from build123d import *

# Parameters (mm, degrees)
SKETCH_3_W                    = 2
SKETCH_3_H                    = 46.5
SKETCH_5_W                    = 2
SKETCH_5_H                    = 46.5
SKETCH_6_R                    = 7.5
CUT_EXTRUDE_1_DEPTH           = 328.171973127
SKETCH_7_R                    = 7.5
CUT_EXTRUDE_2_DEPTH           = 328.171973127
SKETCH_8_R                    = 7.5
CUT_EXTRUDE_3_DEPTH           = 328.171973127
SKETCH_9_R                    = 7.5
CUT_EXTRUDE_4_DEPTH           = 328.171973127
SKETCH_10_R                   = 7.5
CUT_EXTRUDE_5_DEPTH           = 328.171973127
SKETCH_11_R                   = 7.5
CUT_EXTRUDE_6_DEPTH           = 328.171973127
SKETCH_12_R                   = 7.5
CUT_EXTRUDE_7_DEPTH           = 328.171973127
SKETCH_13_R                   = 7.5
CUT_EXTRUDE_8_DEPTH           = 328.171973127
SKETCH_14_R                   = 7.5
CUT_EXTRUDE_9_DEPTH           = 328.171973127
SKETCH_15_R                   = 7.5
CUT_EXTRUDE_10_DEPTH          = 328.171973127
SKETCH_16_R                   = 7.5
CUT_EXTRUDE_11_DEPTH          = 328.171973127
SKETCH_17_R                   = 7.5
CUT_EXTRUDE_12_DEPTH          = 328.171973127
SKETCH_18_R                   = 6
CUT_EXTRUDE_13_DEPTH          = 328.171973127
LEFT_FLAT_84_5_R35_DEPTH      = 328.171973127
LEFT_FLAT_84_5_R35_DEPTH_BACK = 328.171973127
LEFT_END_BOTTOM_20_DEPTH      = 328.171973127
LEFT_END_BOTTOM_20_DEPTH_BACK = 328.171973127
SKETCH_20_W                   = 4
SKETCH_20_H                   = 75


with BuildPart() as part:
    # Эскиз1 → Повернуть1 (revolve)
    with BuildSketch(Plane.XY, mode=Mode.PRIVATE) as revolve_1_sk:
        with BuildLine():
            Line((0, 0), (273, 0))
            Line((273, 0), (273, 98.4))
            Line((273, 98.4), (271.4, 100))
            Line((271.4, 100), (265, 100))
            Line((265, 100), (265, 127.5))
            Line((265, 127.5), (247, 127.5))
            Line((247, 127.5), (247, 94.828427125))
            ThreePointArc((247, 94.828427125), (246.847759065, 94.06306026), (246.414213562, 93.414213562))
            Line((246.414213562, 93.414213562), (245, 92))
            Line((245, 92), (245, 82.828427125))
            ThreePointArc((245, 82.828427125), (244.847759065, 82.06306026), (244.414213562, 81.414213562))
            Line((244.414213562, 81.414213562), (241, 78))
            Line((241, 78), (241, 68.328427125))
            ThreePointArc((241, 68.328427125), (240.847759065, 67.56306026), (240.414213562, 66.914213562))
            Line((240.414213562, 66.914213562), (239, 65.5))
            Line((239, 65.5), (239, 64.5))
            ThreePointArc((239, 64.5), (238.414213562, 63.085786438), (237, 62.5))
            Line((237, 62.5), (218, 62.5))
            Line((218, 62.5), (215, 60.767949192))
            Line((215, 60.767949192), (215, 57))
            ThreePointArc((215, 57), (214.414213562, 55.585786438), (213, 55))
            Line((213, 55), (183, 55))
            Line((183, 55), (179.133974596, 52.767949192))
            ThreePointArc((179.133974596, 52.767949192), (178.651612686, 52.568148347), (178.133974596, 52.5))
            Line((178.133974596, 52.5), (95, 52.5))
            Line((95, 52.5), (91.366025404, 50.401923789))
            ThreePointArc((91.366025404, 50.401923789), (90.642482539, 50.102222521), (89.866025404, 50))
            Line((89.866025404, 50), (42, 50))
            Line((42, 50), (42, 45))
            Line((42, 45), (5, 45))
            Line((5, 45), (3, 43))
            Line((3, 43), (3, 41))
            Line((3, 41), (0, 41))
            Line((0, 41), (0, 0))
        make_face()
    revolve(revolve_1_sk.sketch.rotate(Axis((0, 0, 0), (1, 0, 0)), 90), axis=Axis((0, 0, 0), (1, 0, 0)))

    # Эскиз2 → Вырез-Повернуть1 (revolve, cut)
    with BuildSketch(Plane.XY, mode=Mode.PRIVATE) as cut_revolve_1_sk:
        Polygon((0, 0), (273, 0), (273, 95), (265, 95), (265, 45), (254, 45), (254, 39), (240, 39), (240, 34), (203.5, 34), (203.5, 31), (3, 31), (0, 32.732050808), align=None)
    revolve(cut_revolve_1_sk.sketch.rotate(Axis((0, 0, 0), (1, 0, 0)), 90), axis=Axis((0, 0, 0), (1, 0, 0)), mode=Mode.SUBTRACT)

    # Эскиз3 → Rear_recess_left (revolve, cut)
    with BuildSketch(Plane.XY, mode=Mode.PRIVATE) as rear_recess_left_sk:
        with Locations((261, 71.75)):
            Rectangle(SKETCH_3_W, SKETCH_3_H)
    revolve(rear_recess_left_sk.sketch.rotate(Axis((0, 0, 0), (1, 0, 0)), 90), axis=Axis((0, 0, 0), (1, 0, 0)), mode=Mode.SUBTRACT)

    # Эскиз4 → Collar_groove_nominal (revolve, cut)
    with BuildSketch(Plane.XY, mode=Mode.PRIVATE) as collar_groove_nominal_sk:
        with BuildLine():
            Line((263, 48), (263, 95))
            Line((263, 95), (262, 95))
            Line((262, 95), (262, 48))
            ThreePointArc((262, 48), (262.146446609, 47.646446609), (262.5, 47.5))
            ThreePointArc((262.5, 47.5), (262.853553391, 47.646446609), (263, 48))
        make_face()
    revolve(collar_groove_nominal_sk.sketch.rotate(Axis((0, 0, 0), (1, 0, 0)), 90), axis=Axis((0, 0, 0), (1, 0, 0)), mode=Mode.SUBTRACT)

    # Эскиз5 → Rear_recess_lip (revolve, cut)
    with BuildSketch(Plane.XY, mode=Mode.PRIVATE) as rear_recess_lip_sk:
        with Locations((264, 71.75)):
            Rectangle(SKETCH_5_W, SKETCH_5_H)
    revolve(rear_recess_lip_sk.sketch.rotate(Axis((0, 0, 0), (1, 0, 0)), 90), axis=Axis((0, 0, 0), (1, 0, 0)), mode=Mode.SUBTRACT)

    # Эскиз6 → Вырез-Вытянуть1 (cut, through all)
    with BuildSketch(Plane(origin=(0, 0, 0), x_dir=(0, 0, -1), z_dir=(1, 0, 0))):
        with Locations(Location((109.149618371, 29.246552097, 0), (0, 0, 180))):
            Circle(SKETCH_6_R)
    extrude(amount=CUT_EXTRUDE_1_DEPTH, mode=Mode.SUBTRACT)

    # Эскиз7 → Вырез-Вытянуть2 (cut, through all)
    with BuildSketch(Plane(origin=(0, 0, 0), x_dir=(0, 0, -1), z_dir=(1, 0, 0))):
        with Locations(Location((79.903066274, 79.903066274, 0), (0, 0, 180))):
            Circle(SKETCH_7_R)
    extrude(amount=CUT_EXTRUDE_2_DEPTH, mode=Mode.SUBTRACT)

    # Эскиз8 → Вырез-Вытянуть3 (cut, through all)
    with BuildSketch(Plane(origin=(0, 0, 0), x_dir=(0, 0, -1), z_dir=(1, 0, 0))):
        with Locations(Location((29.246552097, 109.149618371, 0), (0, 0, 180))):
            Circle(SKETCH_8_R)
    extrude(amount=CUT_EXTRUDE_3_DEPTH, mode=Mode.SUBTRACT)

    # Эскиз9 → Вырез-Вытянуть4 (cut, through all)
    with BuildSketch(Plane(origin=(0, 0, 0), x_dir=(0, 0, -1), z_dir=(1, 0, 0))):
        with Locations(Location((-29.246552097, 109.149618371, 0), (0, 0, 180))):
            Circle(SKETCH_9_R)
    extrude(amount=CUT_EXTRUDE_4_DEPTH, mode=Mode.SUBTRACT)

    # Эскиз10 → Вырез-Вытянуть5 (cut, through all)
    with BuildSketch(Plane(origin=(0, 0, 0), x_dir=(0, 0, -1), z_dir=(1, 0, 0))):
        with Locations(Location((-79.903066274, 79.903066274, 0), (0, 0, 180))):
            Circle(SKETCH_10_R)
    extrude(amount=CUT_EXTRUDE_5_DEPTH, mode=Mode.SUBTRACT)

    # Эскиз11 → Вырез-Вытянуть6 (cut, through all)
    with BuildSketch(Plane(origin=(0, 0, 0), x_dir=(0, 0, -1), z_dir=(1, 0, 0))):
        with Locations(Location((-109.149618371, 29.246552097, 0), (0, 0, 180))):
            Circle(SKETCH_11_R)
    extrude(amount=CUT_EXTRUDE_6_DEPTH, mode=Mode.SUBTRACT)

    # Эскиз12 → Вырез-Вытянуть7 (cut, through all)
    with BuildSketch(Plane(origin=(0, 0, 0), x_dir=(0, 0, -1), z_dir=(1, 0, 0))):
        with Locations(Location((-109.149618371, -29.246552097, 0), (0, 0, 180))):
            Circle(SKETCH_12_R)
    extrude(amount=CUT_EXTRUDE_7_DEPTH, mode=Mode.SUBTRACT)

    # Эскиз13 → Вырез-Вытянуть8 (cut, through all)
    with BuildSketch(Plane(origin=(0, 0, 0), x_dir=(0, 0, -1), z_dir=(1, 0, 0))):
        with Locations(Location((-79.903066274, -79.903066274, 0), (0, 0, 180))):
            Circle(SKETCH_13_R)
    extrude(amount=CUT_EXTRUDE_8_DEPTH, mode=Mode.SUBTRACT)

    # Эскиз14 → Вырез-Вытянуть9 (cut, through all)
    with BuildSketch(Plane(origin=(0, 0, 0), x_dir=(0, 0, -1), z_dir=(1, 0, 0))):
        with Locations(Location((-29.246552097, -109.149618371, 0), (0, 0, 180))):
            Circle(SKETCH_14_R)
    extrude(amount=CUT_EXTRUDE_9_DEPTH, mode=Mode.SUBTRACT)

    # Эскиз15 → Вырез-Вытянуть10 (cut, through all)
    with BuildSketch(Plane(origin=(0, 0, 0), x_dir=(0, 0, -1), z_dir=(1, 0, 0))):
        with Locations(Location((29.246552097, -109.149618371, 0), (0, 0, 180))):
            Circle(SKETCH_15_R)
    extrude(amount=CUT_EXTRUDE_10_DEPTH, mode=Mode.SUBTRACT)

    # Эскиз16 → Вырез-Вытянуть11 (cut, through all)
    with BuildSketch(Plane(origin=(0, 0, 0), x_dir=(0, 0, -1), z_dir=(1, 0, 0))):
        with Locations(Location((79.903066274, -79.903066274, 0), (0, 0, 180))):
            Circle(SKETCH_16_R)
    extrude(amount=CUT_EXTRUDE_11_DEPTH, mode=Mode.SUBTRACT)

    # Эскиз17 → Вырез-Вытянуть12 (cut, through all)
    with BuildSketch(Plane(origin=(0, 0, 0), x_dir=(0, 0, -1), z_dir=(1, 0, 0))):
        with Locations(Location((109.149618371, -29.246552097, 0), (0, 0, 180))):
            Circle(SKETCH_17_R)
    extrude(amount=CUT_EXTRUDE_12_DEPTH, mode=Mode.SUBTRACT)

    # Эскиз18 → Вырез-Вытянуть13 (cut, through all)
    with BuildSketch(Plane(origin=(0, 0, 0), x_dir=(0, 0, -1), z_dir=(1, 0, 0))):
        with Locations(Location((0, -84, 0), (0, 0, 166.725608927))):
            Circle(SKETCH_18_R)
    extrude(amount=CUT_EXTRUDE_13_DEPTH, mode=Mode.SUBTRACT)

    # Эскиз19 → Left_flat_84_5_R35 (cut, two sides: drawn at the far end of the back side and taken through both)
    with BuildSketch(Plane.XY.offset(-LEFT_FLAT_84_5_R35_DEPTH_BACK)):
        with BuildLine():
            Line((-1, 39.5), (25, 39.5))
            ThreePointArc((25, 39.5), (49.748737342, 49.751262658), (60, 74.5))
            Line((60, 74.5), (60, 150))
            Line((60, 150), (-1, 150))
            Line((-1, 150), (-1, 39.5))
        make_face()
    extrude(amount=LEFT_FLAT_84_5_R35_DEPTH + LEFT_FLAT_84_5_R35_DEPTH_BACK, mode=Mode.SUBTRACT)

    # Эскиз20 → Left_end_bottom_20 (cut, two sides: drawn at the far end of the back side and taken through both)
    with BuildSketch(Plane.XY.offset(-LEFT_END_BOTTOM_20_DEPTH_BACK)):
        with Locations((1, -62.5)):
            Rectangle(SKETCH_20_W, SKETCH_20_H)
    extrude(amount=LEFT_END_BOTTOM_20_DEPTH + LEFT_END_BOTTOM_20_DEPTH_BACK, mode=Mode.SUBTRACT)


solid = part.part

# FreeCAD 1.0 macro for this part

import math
import FreeCAD as App
import Part
import Sketcher
from FreeCAD import Vector
Q = App.Units.Quantity

doc = App.newDocument("Part")
body = doc.addObject("PartDesign::Body", "Body")

sketch1 = body.newObject("Sketcher::SketchObject", "Sketch")
sketch1.AttachmentSupport = (doc.getObject("XY_Plane"), [""])
sketch1.MapMode = "FlatFace"
sketch1.addGeometry([
    Part.LineSegment(Vector(0, 0, 0), Vector(273, 0, 0)),
    Part.LineSegment(Vector(273, 0, 0), Vector(273, 98.4, 0)),
    Part.LineSegment(Vector(273, 98.4, 0), Vector(271.4, 100, 0)),
    Part.LineSegment(Vector(271.4, 100, 0), Vector(265, 100, 0)),
    Part.LineSegment(Vector(265, 100, 0), Vector(265, 127.5, 0)),
    Part.LineSegment(Vector(265, 127.5, 0), Vector(247, 127.5, 0)),
    Part.LineSegment(Vector(247, 127.5, 0), Vector(247, 94.8, 0)),
    Part.ArcOfCircle(Part.Circle(Vector(245, 94.8, 0), Vector(0, 0, 1), 2), math.radians(-45), math.radians(0)),
    Part.LineSegment(Vector(246.4, 93.4, 0), Vector(245, 92, 0)),
    Part.LineSegment(Vector(245, 92, 0), Vector(245, 82.8, 0)),
    Part.ArcOfCircle(Part.Circle(Vector(243, 82.8, 0), Vector(0, 0, 1), 2), math.radians(-45), math.radians(0)),
    Part.LineSegment(Vector(244.4, 81.4, 0), Vector(241, 78, 0)),
    Part.LineSegment(Vector(241, 78, 0), Vector(241, 68.3, 0)),
    Part.ArcOfCircle(Part.Circle(Vector(239, 68.3, 0), Vector(0, 0, 1), 2), math.radians(-45), math.radians(0)),
    Part.LineSegment(Vector(240.4, 66.9, 0), Vector(239, 65.5, 0)),
    Part.LineSegment(Vector(239, 65.5, 0), Vector(239, 64.5, 0)),
    Part.ArcOfCircle(Part.Circle(Vector(237, 64.5, 0), Vector(0, 0, 1), 2), math.radians(-90), math.radians(0)),
    Part.LineSegment(Vector(237, 62.5, 0), Vector(218, 62.5, 0)),
    Part.LineSegment(Vector(218, 62.5, 0), Vector(215, 60.8, 0)),
    Part.LineSegment(Vector(215, 60.8, 0), Vector(215, 57, 0)),
    Part.ArcOfCircle(Part.Circle(Vector(213, 57, 0), Vector(0, 0, 1), 2), math.radians(-90), math.radians(0)),
    Part.LineSegment(Vector(213, 55, 0), Vector(183, 55, 0)),
    Part.LineSegment(Vector(183, 55, 0), Vector(179.1, 52.8, 0)),
    Part.ArcOfCircle(Part.Circle(Vector(178.1, 54.5, 0), Vector(0, 0, 1), 2), math.radians(-90), math.radians(-60)),
    Part.LineSegment(Vector(178.1, 52.5, 0), Vector(95, 52.5, 0)),
    Part.LineSegment(Vector(95, 52.5, 0), Vector(91.4, 50.4, 0)),
    Part.ArcOfCircle(Part.Circle(Vector(89.9, 53, 0), Vector(0, 0, 1), 3), math.radians(-90), math.radians(-60)),
    Part.LineSegment(Vector(89.9, 50, 0), Vector(42, 50, 0)),
    Part.LineSegment(Vector(42, 50, 0), Vector(42, 45, 0)),
    Part.LineSegment(Vector(42, 45, 0), Vector(5, 45, 0)),
    Part.LineSegment(Vector(5, 45, 0), Vector(3, 43, 0)),
    Part.LineSegment(Vector(3, 43, 0), Vector(3, 41, 0)),
    Part.LineSegment(Vector(3, 41, 0), Vector(0, 41, 0)),
    Part.LineSegment(Vector(0, 41, 0), Vector(0, 0, 0)),
], False)
sketch1.addConstraint([
    Sketcher.Constraint("Coincident", 0, 2, 1, 1),
    Sketcher.Constraint("Coincident", 1, 2, 2, 1),
    Sketcher.Constraint("Coincident", 2, 2, 3, 1),
    Sketcher.Constraint("Coincident", 3, 2, 4, 1),
    Sketcher.Constraint("Coincident", 4, 2, 5, 1),
    Sketcher.Constraint("Coincident", 5, 2, 6, 1),
    Sketcher.Constraint("Tangent", 6, 2, 7, 2),
    Sketcher.Constraint("Tangent", 7, 1, 8, 1),
    Sketcher.Constraint("Coincident", 8, 2, 9, 1),
    Sketcher.Constraint("Tangent", 9, 2, 10, 2),
    Sketcher.Constraint("Tangent", 10, 1, 11, 1),
    Sketcher.Constraint("Coincident", 11, 2, 12, 1),
    Sketcher.Constraint("Tangent", 12, 2, 13, 2),
    Sketcher.Constraint("Tangent", 13, 1, 14, 1),
    Sketcher.Constraint("Coincident", 14, 2, 15, 1),
    Sketcher.Constraint("Tangent", 15, 2, 16, 2),
    Sketcher.Constraint("Tangent", 16, 1, 17, 1),
    Sketcher.Constraint("Coincident", 17, 2, 18, 1),
    Sketcher.Constraint("Coincident", 18, 2, 19, 1),
    Sketcher.Constraint("Tangent", 19, 2, 20, 2),
    Sketcher.Constraint("Tangent", 20, 1, 21, 1),
    Sketcher.Constraint("Coincident", 21, 2, 22, 1),
    Sketcher.Constraint("Tangent", 22, 2, 23, 2),
    Sketcher.Constraint("Tangent", 23, 1, 24, 1),
    Sketcher.Constraint("Coincident", 24, 2, 25, 1),
    Sketcher.Constraint("Tangent", 25, 2, 26, 2),
    Sketcher.Constraint("Tangent", 26, 1, 27, 1),
    Sketcher.Constraint("Coincident", 27, 2, 28, 1),
    Sketcher.Constraint("Coincident", 28, 2, 29, 1),
    Sketcher.Constraint("Coincident", 29, 2, 30, 1),
    Sketcher.Constraint("Coincident", 30, 2, 31, 1),
    Sketcher.Constraint("Coincident", 31, 2, 32, 1),
    Sketcher.Constraint("Coincident", 32, 2, 33, 1),
    Sketcher.Constraint("Coincident", 33, 2, 0, 1),
    Sketcher.Constraint("Horizontal", 0),
    Sketcher.Constraint("Vertical", 1),
    Sketcher.Constraint("Horizontal", 3),
    Sketcher.Constraint("Vertical", 4),
    Sketcher.Constraint("Horizontal", 5),
    Sketcher.Constraint("Vertical", 6),
    Sketcher.Constraint("Vertical", 9),
    Sketcher.Constraint("Vertical", 12),
    Sketcher.Constraint("Vertical", 15),
    Sketcher.Constraint("Horizontal", 17),
    Sketcher.Constraint("Vertical", 19),
    Sketcher.Constraint("Horizontal", 21),
    Sketcher.Constraint("Horizontal", 24),
    Sketcher.Constraint("Horizontal", 27),
    Sketcher.Constraint("Vertical", 28),
    Sketcher.Constraint("Horizontal", 29),
    Sketcher.Constraint("Vertical", 31),
    Sketcher.Constraint("Horizontal", 32),
    Sketcher.Constraint("Vertical", 33),
    Sketcher.Constraint("Coincident", 33, 2, -1, 1),
    Sketcher.Constraint("Equal", 7, 10),
    Sketcher.Constraint("Equal", 10, 13),
    Sketcher.Constraint("Equal", 13, 16),
    Sketcher.Constraint("Equal", 16, 20),
    Sketcher.Constraint("Equal", 20, 23),
    Sketcher.Constraint("Perpendicular", 2, 8),
    Sketcher.Constraint("Parallel", 8, 11),
    Sketcher.Constraint("Parallel", 11, 14),
    Sketcher.Constraint("Parallel", 18, 22),
    Sketcher.Constraint("Parallel", 22, 25),
    Sketcher.Constraint("Parallel", 14, 30),
    Sketcher.Constraint("Vertical", 7, 3, 8, 2),
    Sketcher.Constraint("Vertical", 13, 3, 14, 2),
    Sketcher.Constraint("Radius", 7, 2.0),
    Sketcher.Constraint("Radius", 26, 3.0),
    Sketcher.Constraint("DistanceX", 0, 1, 0, 2, 273.0),
    Sketcher.Constraint("DistanceX", 5, 2, 5, 1, 18.0),
    Sketcher.Constraint("DistanceX", 17, 2, 17, 1, 19.0),
    Sketcher.Constraint("DistanceX", 21, 2, 21, 1, 30.0),
    Sketcher.Constraint("DistanceX", 29, 2, 29, 1, 37.0),
    Sketcher.Constraint("DistanceX", 32, 2, 32, 1, 3.0),
    Sketcher.Constraint("DistanceY", 15, 2, 15, 1, 1.0),
    Sketcher.Constraint("DistanceY", 28, 2, 28, 1, 5.0),
    Sketcher.Constraint("DistanceY", 31, 2, 31, 1, 2.0),
    Sketcher.Constraint("DistanceY", 33, 2, 33, 1, 41.0),
    Sketcher.Constraint("Angle", 2, Q("135 deg")),
    Sketcher.Constraint("Angle", 18, Q("-150 deg")),
    Sketcher.Constraint("DistanceX", 3, 2, 3, 1, 6.4),
    Sketcher.Constraint("DistanceY", 1, 1, 1, 2, 98.4),
    Sketcher.Constraint("DistanceY", 4, 1, 4, 2, 27.5),
    Sketcher.Constraint("DistanceX", -1, 1, 7, 3, 245.0),
    Sketcher.Constraint("DistanceX", -1, 1, 13, 3, 239.0),
    Sketcher.Constraint("DistanceX", -1, 1, 20, 3, 213.0),
    Sketcher.Constraint("DistanceY", -1, 1, 20, 3, 57.0),
    Sketcher.Constraint("DistanceY", -1, 1, 26, 3, 53.0),
    Sketcher.Constraint("DistanceY", -1, 1, 8, 2, 92.0),
    Sketcher.Constraint("DistanceY", -1, 1, 11, 2, 78.0),
    Sketcher.Constraint("DistanceX", -1, 1, 24, 2, 95.0),
    Sketcher.Constraint("DistanceY", 23, 3, 16, 3, 10.0),
    Sketcher.Constraint("DistanceY", -1, 1, 16, 3, 64.5),
])
revolution = body.newObject("PartDesign::Revolution", "Revolution")
revolution.Profile = sketch1
revolution.ReferenceAxis = (sketch1, ["H_Axis"])
revolution.Angle = 360

sketch2 = body.newObject("Sketcher::SketchObject", "Sketch001")
sketch2.AttachmentSupport = (doc.getObject("XY_Plane"), [""])
sketch2.MapMode = "FlatFace"
sketch2.addGeometry([
    Part.LineSegment(Vector(0, 0, 0), Vector(273, 0, 0)),
    Part.LineSegment(Vector(273, 0, 0), Vector(273, 95, 0)),
    Part.LineSegment(Vector(273, 95, 0), Vector(265, 95, 0)),
    Part.LineSegment(Vector(265, 95, 0), Vector(265, 45, 0)),
    Part.LineSegment(Vector(265, 45, 0), Vector(254, 45, 0)),
    Part.LineSegment(Vector(254, 45, 0), Vector(254, 39, 0)),
    Part.LineSegment(Vector(254, 39, 0), Vector(240, 39, 0)),
    Part.LineSegment(Vector(240, 39, 0), Vector(240, 34, 0)),
    Part.LineSegment(Vector(240, 34, 0), Vector(203.5, 34, 0)),
    Part.LineSegment(Vector(203.5, 34, 0), Vector(203.5, 31, 0)),
    Part.LineSegment(Vector(203.5, 31, 0), Vector(3, 31, 0)),
    Part.LineSegment(Vector(3, 31, 0), Vector(0, 32.7, 0)),
    Part.LineSegment(Vector(0, 32.7, 0), Vector(0, 0, 0)),
], False)
sketch2.addConstraint([
    Sketcher.Constraint("Coincident", 0, 2, 1, 1),
    Sketcher.Constraint("Coincident", 1, 2, 2, 1),
    Sketcher.Constraint("Coincident", 2, 2, 3, 1),
    Sketcher.Constraint("Coincident", 3, 2, 4, 1),
    Sketcher.Constraint("Coincident", 4, 2, 5, 1),
    Sketcher.Constraint("Coincident", 5, 2, 6, 1),
    Sketcher.Constraint("Coincident", 6, 2, 7, 1),
    Sketcher.Constraint("Coincident", 7, 2, 8, 1),
    Sketcher.Constraint("Coincident", 8, 2, 9, 1),
    Sketcher.Constraint("Coincident", 9, 2, 10, 1),
    Sketcher.Constraint("Coincident", 10, 2, 11, 1),
    Sketcher.Constraint("Coincident", 11, 2, 12, 1),
    Sketcher.Constraint("Coincident", 12, 2, 0, 1),
    Sketcher.Constraint("Horizontal", 0),
    Sketcher.Constraint("Vertical", 1),
    Sketcher.Constraint("Horizontal", 2),
    Sketcher.Constraint("Vertical", 3),
    Sketcher.Constraint("Horizontal", 4),
    Sketcher.Constraint("Vertical", 5),
    Sketcher.Constraint("Horizontal", 6),
    Sketcher.Constraint("Vertical", 7),
    Sketcher.Constraint("Horizontal", 8),
    Sketcher.Constraint("Vertical", 9),
    Sketcher.Constraint("Horizontal", 10),
    Sketcher.Constraint("Vertical", 12),
    Sketcher.Constraint("Coincident", 12, 2, -1, 1),
    Sketcher.Constraint("DistanceX", 0, 1, 0, 2, 273.0),
    Sketcher.Constraint("DistanceX", 2, 2, 2, 1, 8.0),
    Sketcher.Constraint("DistanceX", 4, 2, 4, 1, 11.0),
    Sketcher.Constraint("DistanceX", 6, 2, 6, 1, 14.0),
    Sketcher.Constraint("DistanceY", 1, 1, 1, 2, 95.0),
    Sketcher.Constraint("DistanceY", 3, 2, 3, 1, 50.0),
    Sketcher.Constraint("DistanceY", 5, 2, 5, 1, 6.0),
    Sketcher.Constraint("DistanceY", 7, 2, 7, 1, 5.0),
    Sketcher.Constraint("DistanceY", 9, 2, 9, 1, 3.0),
    Sketcher.Constraint("Angle", 11, Q("150 deg")),
    Sketcher.Constraint("DistanceX", 8, 2, 8, 1, 36.5),
    Sketcher.Constraint("DistanceX", 10, 2, 10, 1, 200.5),
])
groove = body.newObject("PartDesign::Groove", "Groove")
groove.Profile = sketch2
groove.ReferenceAxis = (sketch2, ["H_Axis"])
groove.Angle = 360

sketch3 = body.newObject("Sketcher::SketchObject", "Sketch002")
sketch3.AttachmentSupport = (doc.getObject("XY_Plane"), [""])
sketch3.MapMode = "FlatFace"
sketch3.addGeometry([
    Part.LineSegment(Vector(260, 95, 0), Vector(260, 48.5, 0)),
    Part.LineSegment(Vector(260, 48.5, 0), Vector(262, 48.5, 0)),
    Part.LineSegment(Vector(262, 48.5, 0), Vector(262, 95, 0)),
    Part.LineSegment(Vector(262, 95, 0), Vector(260, 95, 0)),
], False)
sketch3.addConstraint([
    Sketcher.Constraint("Coincident", 0, 2, 1, 1),
    Sketcher.Constraint("Coincident", 1, 2, 2, 1),
    Sketcher.Constraint("Coincident", 2, 2, 3, 1),
    Sketcher.Constraint("Coincident", 3, 2, 0, 1),
    Sketcher.Constraint("Vertical", 0),
    Sketcher.Constraint("Horizontal", 1),
    Sketcher.Constraint("Vertical", 2),
    Sketcher.Constraint("Horizontal", 3),
    Sketcher.Constraint("DistanceX", 1, 1, 1, 2, 2.0),
    Sketcher.Constraint("DistanceY", 0, 2, 0, 1, 46.5),
    Sketcher.Constraint("DistanceX", -1, 1, 0, 2, 260.0),
    Sketcher.Constraint("DistanceY", -1, 1, 2, 2, 95.0),
])
groove2 = body.newObject("PartDesign::Groove", "Groove001")
groove2.Profile = sketch3
groove2.ReferenceAxis = (sketch3, ["H_Axis"])
groove2.Angle = 360

sketch4 = body.newObject("Sketcher::SketchObject", "Sketch003")
sketch4.AttachmentSupport = (doc.getObject("XY_Plane"), [""])
sketch4.MapMode = "FlatFace"
sketch4.addGeometry([
    Part.LineSegment(Vector(263, 48, 0), Vector(263, 95, 0)),
    Part.LineSegment(Vector(263, 95, 0), Vector(262, 95, 0)),
    Part.LineSegment(Vector(262, 95, 0), Vector(262, 48, 0)),
    Part.ArcOfCircle(Part.Circle(Vector(262.5, 48, 0), Vector(0, 0, 1), 0.5), math.radians(180), math.radians(270)),
    Part.ArcOfCircle(Part.Circle(Vector(262.5, 48, 0), Vector(0, 0, 1), 0.5), math.radians(-90), math.radians(0)),
], False)
sketch4.addConstraint([
    Sketcher.Constraint("Coincident", 0, 2, 1, 1),
    Sketcher.Constraint("Coincident", 1, 2, 2, 1),
    Sketcher.Constraint("Tangent", 2, 2, 3, 1),
    Sketcher.Constraint("Tangent", 3, 2, 4, 1),
    Sketcher.Constraint("Tangent", 4, 2, 0, 1),
    Sketcher.Constraint("Vertical", 0),
    Sketcher.Constraint("Horizontal", 1),
    Sketcher.Constraint("Vertical", 2),
    Sketcher.Constraint("Equal", 3, 4),
    Sketcher.Constraint("Vertical", 4, 3, 3, 2),
    Sketcher.Constraint("Radius", 3, 0.5),
    Sketcher.Constraint("DistanceY", 0, 1, 0, 2, 47.0),
    Sketcher.Constraint("DistanceY", -1, 1, 3, 3, 48.0),
    Sketcher.Constraint("DistanceX", -1, 1, 0, 2, 263.0),
])
groove3 = body.newObject("PartDesign::Groove", "Groove002")
groove3.Profile = sketch4
groove3.ReferenceAxis = (sketch4, ["H_Axis"])
groove3.Angle = 360

sketch5 = body.newObject("Sketcher::SketchObject", "Sketch004")
sketch5.AttachmentSupport = (doc.getObject("XY_Plane"), [""])
sketch5.MapMode = "FlatFace"
sketch5.addGeometry([
    Part.LineSegment(Vector(263, 95, 0), Vector(263, 48.5, 0)),
    Part.LineSegment(Vector(263, 48.5, 0), Vector(265, 48.5, 0)),
    Part.LineSegment(Vector(265, 48.5, 0), Vector(265, 95, 0)),
    Part.LineSegment(Vector(265, 95, 0), Vector(263, 95, 0)),
], False)
sketch5.addConstraint([
    Sketcher.Constraint("Coincident", 0, 2, 1, 1),
    Sketcher.Constraint("Coincident", 1, 2, 2, 1),
    Sketcher.Constraint("Coincident", 2, 2, 3, 1),
    Sketcher.Constraint("Coincident", 3, 2, 0, 1),
    Sketcher.Constraint("Vertical", 0),
    Sketcher.Constraint("Horizontal", 1),
    Sketcher.Constraint("Vertical", 2),
    Sketcher.Constraint("Horizontal", 3),
    Sketcher.Constraint("DistanceX", 1, 1, 1, 2, 2.0),
    Sketcher.Constraint("DistanceY", 0, 2, 0, 1, 46.5),
    Sketcher.Constraint("DistanceX", -1, 1, 0, 2, 263.0),
    Sketcher.Constraint("DistanceY", -1, 1, 2, 2, 95.0),
])
groove4 = body.newObject("PartDesign::Groove", "Groove003")
groove4.Profile = sketch5
groove4.ReferenceAxis = (sketch5, ["H_Axis"])
groove4.Angle = 360

sketch6 = body.newObject("Sketcher::SketchObject", "Sketch005")
sketch6.AttachmentSupport = (doc.getObject("YZ_Plane"), [""])
sketch6.MapMode = "FlatFace"
sketch6.addGeometry(Part.Circle(Vector(29, -109, 0), Vector(0, 0, 1), 8), False)
sketch6.addConstraint([
    Sketcher.Constraint("Diameter", 0, 15.0),
    Sketcher.Constraint("DistanceY", 0, 3, -1, 1, 109.149618),
    Sketcher.Constraint("DistanceX", -1, 1, 0, 3, 29.246552),
])
pocket1 = body.newObject("PartDesign::Pocket", "Pocket")
pocket1.Profile = sketch6
pocket1.Type = "ThroughAll"
pocket1.Reversed = True

sketch7 = body.newObject("Sketcher::SketchObject", "Sketch006")
sketch7.AttachmentSupport = (doc.getObject("YZ_Plane"), [""])
sketch7.MapMode = "FlatFace"
sketch7.addGeometry(Part.Circle(Vector(80, -80, 0), Vector(0, 0, 1), 8), False)
sketch7.addConstraint([
    Sketcher.Constraint("Diameter", 0, 15.0),
    Sketcher.Constraint("DistanceX", -1, 1, 0, 3, 79.903066),
    Sketcher.Constraint("DistanceY", 0, 3, -1, 1, 79.903066),
])
pocket2 = body.newObject("PartDesign::Pocket", "Pocket001")
pocket2.Profile = sketch7
pocket2.Type = "ThroughAll"
pocket2.Reversed = True

sketch8 = body.newObject("Sketcher::SketchObject", "Sketch007")
sketch8.AttachmentSupport = (doc.getObject("YZ_Plane"), [""])
sketch8.MapMode = "FlatFace"
sketch8.addGeometry(Part.Circle(Vector(109, -29, 0), Vector(0, 0, 1), 8), False)
sketch8.addConstraint([
    Sketcher.Constraint("Diameter", 0, 15.0),
    Sketcher.Constraint("DistanceX", -1, 1, 0, 3, 109.149618),
    Sketcher.Constraint("DistanceY", 0, 3, -1, 1, 29.246552),
])
pocket3 = body.newObject("PartDesign::Pocket", "Pocket002")
pocket3.Profile = sketch8
pocket3.Type = "ThroughAll"
pocket3.Reversed = True

sketch9 = body.newObject("Sketcher::SketchObject", "Sketch008")
sketch9.AttachmentSupport = (doc.getObject("YZ_Plane"), [""])
sketch9.MapMode = "FlatFace"
sketch9.addGeometry(Part.Circle(Vector(109, 29, 0), Vector(0, 0, 1), 8), False)
sketch9.addConstraint([
    Sketcher.Constraint("Diameter", 0, 15.0),
    Sketcher.Constraint("DistanceX", -1, 1, 0, 3, 109.149618),
    Sketcher.Constraint("DistanceY", -1, 1, 0, 3, 29.246552),
])
pocket4 = body.newObject("PartDesign::Pocket", "Pocket003")
pocket4.Profile = sketch9
pocket4.Type = "ThroughAll"
pocket4.Reversed = True

sketch10 = body.newObject("Sketcher::SketchObject", "Sketch009")
sketch10.AttachmentSupport = (doc.getObject("YZ_Plane"), [""])
sketch10.MapMode = "FlatFace"
sketch10.addGeometry(Part.Circle(Vector(80, 80, 0), Vector(0, 0, 1), 8), False)
sketch10.addConstraint([
    Sketcher.Constraint("Diameter", 0, 15.0),
    Sketcher.Constraint("DistanceX", -1, 1, 0, 3, 79.903066),
    Sketcher.Constraint("DistanceY", -1, 1, 0, 3, 79.903066),
])
pocket5 = body.newObject("PartDesign::Pocket", "Pocket004")
pocket5.Profile = sketch10
pocket5.Type = "ThroughAll"
pocket5.Reversed = True

sketch11 = body.newObject("Sketcher::SketchObject", "Sketch010")
sketch11.AttachmentSupport = (doc.getObject("YZ_Plane"), [""])
sketch11.MapMode = "FlatFace"
sketch11.addGeometry(Part.Circle(Vector(29, 109, 0), Vector(0, 0, 1), 8), False)
sketch11.addConstraint([
    Sketcher.Constraint("Diameter", 0, 15.0),
    Sketcher.Constraint("DistanceY", -1, 1, 0, 3, 109.149618),
    Sketcher.Constraint("DistanceX", -1, 1, 0, 3, 29.246552),
])
pocket6 = body.newObject("PartDesign::Pocket", "Pocket005")
pocket6.Profile = sketch11
pocket6.Type = "ThroughAll"
pocket6.Reversed = True

sketch12 = body.newObject("Sketcher::SketchObject", "Sketch011")
sketch12.AttachmentSupport = (doc.getObject("YZ_Plane"), [""])
sketch12.MapMode = "FlatFace"
sketch12.addGeometry(Part.Circle(Vector(-29, 109, 0), Vector(0, 0, 1), 8), False)
sketch12.addConstraint([
    Sketcher.Constraint("Diameter", 0, 15.0),
    Sketcher.Constraint("DistanceY", -1, 1, 0, 3, 109.149618),
    Sketcher.Constraint("DistanceX", 0, 3, -1, 1, 29.246552),
])
pocket7 = body.newObject("PartDesign::Pocket", "Pocket006")
pocket7.Profile = sketch12
pocket7.Type = "ThroughAll"
pocket7.Reversed = True

sketch13 = body.newObject("Sketcher::SketchObject", "Sketch012")
sketch13.AttachmentSupport = (doc.getObject("YZ_Plane"), [""])
sketch13.MapMode = "FlatFace"
sketch13.addGeometry(Part.Circle(Vector(-80, 80, 0), Vector(0, 0, 1), 8), False)
sketch13.addConstraint([
    Sketcher.Constraint("Diameter", 0, 15.0),
    Sketcher.Constraint("DistanceX", 0, 3, -1, 1, 79.903066),
    Sketcher.Constraint("DistanceY", -1, 1, 0, 3, 79.903066),
])
pocket8 = body.newObject("PartDesign::Pocket", "Pocket007")
pocket8.Profile = sketch13
pocket8.Type = "ThroughAll"
pocket8.Reversed = True

sketch14 = body.newObject("Sketcher::SketchObject", "Sketch013")
sketch14.AttachmentSupport = (doc.getObject("YZ_Plane"), [""])
sketch14.MapMode = "FlatFace"
sketch14.addGeometry(Part.Circle(Vector(-109, 29, 0), Vector(0, 0, 1), 8), False)
sketch14.addConstraint([
    Sketcher.Constraint("Diameter", 0, 15.0),
    Sketcher.Constraint("DistanceX", 0, 3, -1, 1, 109.149618),
    Sketcher.Constraint("DistanceY", -1, 1, 0, 3, 29.246552),
])
pocket9 = body.newObject("PartDesign::Pocket", "Pocket008")
pocket9.Profile = sketch14
pocket9.Type = "ThroughAll"
pocket9.Reversed = True

sketch15 = body.newObject("Sketcher::SketchObject", "Sketch014")
sketch15.AttachmentSupport = (doc.getObject("YZ_Plane"), [""])
sketch15.MapMode = "FlatFace"
sketch15.addGeometry(Part.Circle(Vector(-109, -29, 0), Vector(0, 0, 1), 8), False)
sketch15.addConstraint([
    Sketcher.Constraint("Diameter", 0, 15.0),
    Sketcher.Constraint("DistanceX", 0, 3, -1, 1, 109.149618),
    Sketcher.Constraint("DistanceY", 0, 3, -1, 1, 29.246552),
])
pocket10 = body.newObject("PartDesign::Pocket", "Pocket009")
pocket10.Profile = sketch15
pocket10.Type = "ThroughAll"
pocket10.Reversed = True

sketch16 = body.newObject("Sketcher::SketchObject", "Sketch015")
sketch16.AttachmentSupport = (doc.getObject("YZ_Plane"), [""])
sketch16.MapMode = "FlatFace"
sketch16.addGeometry(Part.Circle(Vector(-80, -80, 0), Vector(0, 0, 1), 8), False)
sketch16.addConstraint([
    Sketcher.Constraint("Diameter", 0, 15.0),
    Sketcher.Constraint("DistanceX", 0, 3, -1, 1, 79.903066),
    Sketcher.Constraint("DistanceY", 0, 3, -1, 1, 79.903066),
])
pocket11 = body.newObject("PartDesign::Pocket", "Pocket010")
pocket11.Profile = sketch16
pocket11.Type = "ThroughAll"
pocket11.Reversed = True

sketch17 = body.newObject("Sketcher::SketchObject", "Sketch016")
sketch17.AttachmentSupport = (doc.getObject("YZ_Plane"), [""])
sketch17.MapMode = "FlatFace"
sketch17.addGeometry(Part.Circle(Vector(-29, -109, 0), Vector(0, 0, 1), 8), False)
sketch17.addConstraint([
    Sketcher.Constraint("Diameter", 0, 15.0),
    Sketcher.Constraint("DistanceY", 0, 3, -1, 1, 109.149618),
    Sketcher.Constraint("DistanceX", 0, 3, -1, 1, 29.246552),
])
pocket12 = body.newObject("PartDesign::Pocket", "Pocket011")
pocket12.Profile = sketch17
pocket12.Type = "ThroughAll"
pocket12.Reversed = True

sketch18 = body.newObject("Sketcher::SketchObject", "Sketch017")
sketch18.AttachmentSupport = (doc.getObject("YZ_Plane"), [""])
sketch18.MapMode = "FlatFace"
sketch18.addGeometry(Part.Circle(Vector(-84, 0, 0), Vector(0, 0, 1), 6), False)
sketch18.addConstraint([
    Sketcher.Constraint("PointOnObject", 0, 3, -1),
    Sketcher.Constraint("Diameter", 0, 12.0),
    Sketcher.Constraint("DistanceX", 0, 3, -1, 1, 84.0),
])
pocket13 = body.newObject("PartDesign::Pocket", "Pocket012")
pocket13.Profile = sketch18
pocket13.Type = "ThroughAll"
pocket13.Reversed = True

sketch19 = body.newObject("Sketcher::SketchObject", "Sketch018")
sketch19.AttachmentSupport = (doc.getObject("XY_Plane"), [""])
sketch19.MapMode = "FlatFace"
sketch19.addGeometry([
    Part.LineSegment(Vector(-1, 40, 0), Vector(25, 40, 0)),
    Part.ArcOfCircle(Part.Circle(Vector(25, 74, 0), Vector(0, 0, 1), 35), math.radians(-90), math.radians(0)),
    Part.LineSegment(Vector(60, 74, 0), Vector(60, 150, 0)),
    Part.LineSegment(Vector(60, 150, 0), Vector(-1, 150, 0)),
    Part.LineSegment(Vector(-1, 150, 0), Vector(-1, 40, 0)),
], False)
sketch19.addConstraint([
    Sketcher.Constraint("Tangent", 0, 2, 1, 1),
    Sketcher.Constraint("Tangent", 1, 2, 2, 1),
    Sketcher.Constraint("Coincident", 2, 2, 3, 1),
    Sketcher.Constraint("Coincident", 3, 2, 4, 1),
    Sketcher.Constraint("Coincident", 4, 2, 0, 1),
    Sketcher.Constraint("Horizontal", 0),
    Sketcher.Constraint("Vertical", 2),
    Sketcher.Constraint("Horizontal", 3),
    Sketcher.Constraint("Vertical", 4),
    Sketcher.Constraint("Radius", 1, 35.0),
    Sketcher.Constraint("DistanceX", 0, 1, 0, 2, 26.0),
    Sketcher.Constraint("DistanceY", 2, 1, 2, 2, 75.5),
    Sketcher.Constraint("DistanceX", -1, 1, 1, 3, 25.0),
    Sketcher.Constraint("DistanceY", -1, 1, 2, 2, 150.0),
])
pocket14 = body.newObject("PartDesign::Pocket", "Pocket013")
pocket14.Profile = sketch19
pocket14.Type = "ThroughAll"
pocket14.Midplane = True

sketch20 = body.newObject("Sketcher::SketchObject", "Sketch019")
sketch20.AttachmentSupport = (doc.getObject("XY_Plane"), [""])
sketch20.MapMode = "FlatFace"
sketch20.addGeometry([
    Part.LineSegment(Vector(-1, -25, 0), Vector(-1, -100, 0)),
    Part.LineSegment(Vector(-1, -100, 0), Vector(3, -100, 0)),
    Part.LineSegment(Vector(3, -100, 0), Vector(3, -25, 0)),
    Part.LineSegment(Vector(3, -25, 0), Vector(-1, -25, 0)),
], False)
sketch20.addConstraint([
    Sketcher.Constraint("Coincident", 0, 2, 1, 1),
    Sketcher.Constraint("Coincident", 1, 2, 2, 1),
    Sketcher.Constraint("Coincident", 2, 2, 3, 1),
    Sketcher.Constraint("Coincident", 3, 2, 0, 1),
    Sketcher.Constraint("Vertical", 0),
    Sketcher.Constraint("Horizontal", 1),
    Sketcher.Constraint("Vertical", 2),
    Sketcher.Constraint("Horizontal", 3),
    Sketcher.Constraint("DistanceX", 1, 1, 1, 2, 4.0),
    Sketcher.Constraint("DistanceY", 0, 2, 0, 1, 75.0),
    Sketcher.Constraint("DistanceX", 0, 2, -1, 1, 1.0),
    Sketcher.Constraint("DistanceY", 0, 2, -1, 1, 100.0),
])
pocket15 = body.newObject("PartDesign::Pocket", "Pocket014")
pocket15.Profile = sketch20
pocket15.Type = "ThroughAll"
pocket15.Midplane = True

doc.recompute()
